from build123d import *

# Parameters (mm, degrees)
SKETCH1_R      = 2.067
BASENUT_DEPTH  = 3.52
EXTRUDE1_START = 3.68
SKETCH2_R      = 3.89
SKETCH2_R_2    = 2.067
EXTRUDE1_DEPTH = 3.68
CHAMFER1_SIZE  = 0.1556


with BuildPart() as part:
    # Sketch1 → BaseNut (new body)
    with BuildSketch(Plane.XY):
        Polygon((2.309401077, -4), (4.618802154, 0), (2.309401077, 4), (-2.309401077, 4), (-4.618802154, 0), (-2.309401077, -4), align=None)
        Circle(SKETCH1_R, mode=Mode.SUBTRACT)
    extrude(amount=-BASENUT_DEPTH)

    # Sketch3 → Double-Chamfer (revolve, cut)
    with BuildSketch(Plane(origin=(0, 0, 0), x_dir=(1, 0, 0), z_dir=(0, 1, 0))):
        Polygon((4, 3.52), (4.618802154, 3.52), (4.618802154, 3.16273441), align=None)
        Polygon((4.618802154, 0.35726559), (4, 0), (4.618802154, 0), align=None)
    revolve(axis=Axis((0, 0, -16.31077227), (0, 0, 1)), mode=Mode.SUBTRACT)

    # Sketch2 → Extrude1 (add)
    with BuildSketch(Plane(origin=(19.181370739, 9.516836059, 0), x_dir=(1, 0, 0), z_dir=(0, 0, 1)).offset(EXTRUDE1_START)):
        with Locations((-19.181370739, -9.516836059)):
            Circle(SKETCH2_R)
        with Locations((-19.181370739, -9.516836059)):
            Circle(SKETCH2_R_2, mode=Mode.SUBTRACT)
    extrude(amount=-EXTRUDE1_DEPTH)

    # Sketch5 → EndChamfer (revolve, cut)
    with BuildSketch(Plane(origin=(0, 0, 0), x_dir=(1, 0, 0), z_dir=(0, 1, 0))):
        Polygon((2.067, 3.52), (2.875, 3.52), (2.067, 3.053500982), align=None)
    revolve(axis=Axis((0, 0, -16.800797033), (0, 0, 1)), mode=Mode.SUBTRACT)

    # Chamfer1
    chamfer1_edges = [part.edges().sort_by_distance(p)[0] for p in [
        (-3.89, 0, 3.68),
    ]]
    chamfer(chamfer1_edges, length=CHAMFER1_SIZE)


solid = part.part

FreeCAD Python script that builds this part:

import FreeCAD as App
import Part
import Sketcher

V = App.Vector
Q = App.Units.Quantity


def edges_at(feature, points):
    """Names of the edges that pass closest to the given points."""
    edges = feature.Shape.Edges
    near = lambda p: min(range(len(edges)), key=lambda i: edges[i].distToShape(Part.Vertex(*p))[0])
    return sorted({f"Edge{near(p) + 1}" for p in points})


def add_polygon(sketch, points):
    """Adds a closed chain of lines whose ends are joined by coincident constraints."""
    first, n = sketch.GeometryCount, len(points)
    for a, b in zip(points, points[1:] + points[:1]):
        sketch.addGeometry(Part.LineSegment(App.Vector(*a, 0), App.Vector(*b, 0)), False)
    for i in range(n):
        sketch.addConstraint(Sketcher.Constraint("Coincident", first + i, 2, first + (i + 1) % n, 1))

doc = App.newDocument("Part")
body = doc.addObject("PartDesign::Body", "Body")

# Sketch on XY plane
sketch1 = body.newObject("Sketcher::SketchObject", "Sketch")
sketch1.AttachmentSupport = (doc.getObject("XY_Plane"), [""])
sketch1.MapMode = "FlatFace"
add_polygon(sketch1, [(2.3, -4), (4.6, 0), (2.3, 4), (-2.3, 4), (-4.6, 0), (-2.3, -4)])  # lines 0-5
sketch1.addGeometry(Part.Circle(V(0, 0, 0), V(0, 0, 1), 2.1), False)  # 6
sketch1.addConstraint([
    Sketcher.Constraint("Horizontal", 2),
    Sketcher.Constraint("Horizontal", 5),
    Sketcher.Constraint("Coincident", 6, 3, -1, 1),
    Sketcher.Constraint("Symmetric", 0, 2, 3, 2, -1, 1),
    Sketcher.Constraint("Symmetric", 1, 2, 4, 2, -1, 1),
    Sketcher.Constraint("PointOnObject", 0, 2, -1),
    Sketcher.Constraint("Parallel", 0, 3),
    Sketcher.Constraint("Vertical", 2, 2, 4, 2),
    Sketcher.Constraint("Angle", 0, Q("60 deg")),
    Sketcher.Constraint("Diameter", 6, 4.134),
    Sketcher.Constraint("DistanceY", -1, 1, 1, 2, 4.0),
    Sketcher.Constraint("DistanceX", -1, 1, 1, 2, 2.309401),
])
pad1 = body.newObject("PartDesign::Pad", "Pad")
pad1.Profile = sketch1
pad1.Length = 3.52
pad1.Reversed = True

# Sketch on XZ plane
sketch2 = body.newObject("Sketcher::SketchObject", "Sketch001")
sketch2.AttachmentSupport = (doc.getObject("XZ_Plane"), [""])
sketch2.MapMode = "FlatFace"
add_polygon(sketch2, [(4.62, -3.52), (4, -3.52), (4.62, -3.16)])  # lines 0-2
add_polygon(sketch2, [(4.62, -0.36), (4, 0), (4.62, 0)])  # lines 3-5
sketch2.addConstraint([
    Sketcher.Constraint("Horizontal", 0),
    Sketcher.Constraint("Vertical", 2),
    Sketcher.Constraint("Horizontal", 4),
    Sketcher.Constraint("Vertical", 5),
    Sketcher.Constraint("PointOnObject", 3, 2, -1),
    Sketcher.Constraint("Vertical", 0, 2, 3, 2),
    Sketcher.Constraint("Vertical", 2, 2, 4, 2),
    Sketcher.Constraint("Equal", 2, 5),
    Sketcher.Constraint("Angle", 1, Q("30 deg")),
    Sketcher.Constraint("DistanceX", -1, 1, 0, 2, 4.0),
    Sketcher.Constraint("DistanceY", 0, 2, -1, 1, 3.52),
    Sketcher.Constraint("Distance", 1, 0.714531),
])
groove = body.newObject("PartDesign::Groove", "Groove")
groove.Profile = sketch2
groove.ReferenceAxis = (sketch2, ["V_Axis"])
groove.Angle = 360

# Sketch on XY plane
sketch3 = body.newObject("Sketcher::SketchObject", "Sketch002")
sketch3.AttachmentSupport = (doc.getObject("XY_Plane"), [""])
sketch3.MapMode = "FlatFace"
sketch3.AttachmentOffset = App.Placement(V(0, 0, 3.68), App.Rotation())
sketch3.addGeometry([
    Part.Circle(V(0, 0, 0), V(0, 0, 1), 3.9),
    Part.Circle(V(0, 0, 0), V(0, 0, 1), 2.1),
], False)
sketch3.addConstraint([
    Sketcher.Constraint("Coincident", 0, 3, -1, 1),
    Sketcher.Constraint("Coincident", 1, 3, -1, 1),
    Sketcher.Constraint("Diameter", 0, 7.78),
    Sketcher.Constraint("Diameter", 1, 4.134),
])
pad2 = body.newObject("PartDesign::Pad", "Pad001")
pad2.Profile = sketch3
pad2.Length = 3.68
pad2.Reversed = True

# Sketch on XZ plane
sketch4 = body.newObject("Sketcher::SketchObject", "Sketch003")
sketch4.AttachmentSupport = (doc.getObject("XZ_Plane"), [""])
sketch4.MapMode = "FlatFace"
add_polygon(sketch4, [(2.88, -3.52), (2.07, -3.52), (2.07, -3.05)])  # lines 0-2
sketch4.addConstraint([
    Sketcher.Constraint("Horizontal", 0),
    Sketcher.Constraint("Vertical", 1),
    Sketcher.Constraint("Angle", 2, Q("-30 deg")),
    Sketcher.Constraint("DistanceX", 0, 2, 0, 1, 0.808),
    Sketcher.Constraint("DistanceY", 0, 2, -1, 1, 3.52),
    Sketcher.Constraint("DistanceX", -1, 1, 0, 2, 2.067),
])
groove2 = body.newObject("PartDesign::Groove", "Groove001")
groove2.Profile = sketch4
groove2.ReferenceAxis = (sketch4, ["V_Axis"])
groove2.Angle = 360
doc.recompute()

chamfer = body.newObject("PartDesign::Chamfer", "Chamfer")
chamfer.Base = (groove2, edges_at(groove2, [(-3.89, 0, 3.68)]))
chamfer.Size = 0.1556

doc.recompute()
